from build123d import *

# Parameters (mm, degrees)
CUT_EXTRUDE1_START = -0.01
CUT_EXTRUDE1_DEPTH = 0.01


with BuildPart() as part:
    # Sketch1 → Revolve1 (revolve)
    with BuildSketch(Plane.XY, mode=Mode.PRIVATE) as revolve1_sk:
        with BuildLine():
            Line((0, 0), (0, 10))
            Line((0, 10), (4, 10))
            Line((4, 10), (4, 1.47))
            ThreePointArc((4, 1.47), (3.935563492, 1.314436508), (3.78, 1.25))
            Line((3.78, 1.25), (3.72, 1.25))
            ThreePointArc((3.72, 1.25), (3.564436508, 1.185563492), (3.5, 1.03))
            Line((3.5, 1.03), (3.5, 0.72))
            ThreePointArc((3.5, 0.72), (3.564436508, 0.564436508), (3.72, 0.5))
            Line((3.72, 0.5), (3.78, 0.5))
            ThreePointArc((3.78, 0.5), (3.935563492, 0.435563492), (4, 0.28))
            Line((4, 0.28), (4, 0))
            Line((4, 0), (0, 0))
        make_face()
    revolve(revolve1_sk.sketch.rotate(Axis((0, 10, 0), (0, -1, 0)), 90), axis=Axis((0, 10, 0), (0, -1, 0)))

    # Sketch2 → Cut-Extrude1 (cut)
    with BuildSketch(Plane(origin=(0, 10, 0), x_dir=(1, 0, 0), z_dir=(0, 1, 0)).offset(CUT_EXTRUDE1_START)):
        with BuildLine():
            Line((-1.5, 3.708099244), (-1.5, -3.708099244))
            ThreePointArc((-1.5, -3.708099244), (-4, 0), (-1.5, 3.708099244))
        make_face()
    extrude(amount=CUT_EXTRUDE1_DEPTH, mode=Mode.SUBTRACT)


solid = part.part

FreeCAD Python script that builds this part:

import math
import FreeCAD as App
import Part
import Sketcher

doc = App.newDocument("Part")
body = doc.addObject("PartDesign::Body", "Body")

sketch1 = body.newObject("Sketcher::SketchObject", "Sketch")
sketch1.AttachmentSupport = (doc.getObject("XY_Plane"), [""])
sketch1.MapMode = "FlatFace"
sketch1.addGeometry([
    Part.LineSegment(App.Vector(0, 10, 0), App.Vector(0, 0, 0)),
    Part.LineSegment(App.Vector(0, 0, 0), App.Vector(4, 0, 0)),
    Part.LineSegment(App.Vector(4, 0, 0), App.Vector(4, 0.28, 0)),
    Part.ArcOfCircle(Part.Circle(App.Vector(3.78, 0.28, 0), App.Vector(0, 0, 1), 0.22), math.radians(0), math.radians(90)),
    Part.LineSegment(App.Vector(3.78, 0.5, 0), App.Vector(3.72, 0.5, 0)),
    Part.ArcOfCircle(Part.Circle(App.Vector(3.72, 0.72, 0), App.Vector(0, 0, 1), 0.22), math.radians(180), math.radians(270)),
    Part.LineSegment(App.Vector(3.5, 0.72, 0), App.Vector(3.5, 1.03, 0)),
    Part.ArcOfCircle(Part.Circle(App.Vector(3.72, 1.03, 0), App.Vector(0, 0, 1), 0.22), math.radians(90), math.radians(180)),
    Part.LineSegment(App.Vector(3.72, 1.25, 0), App.Vector(3.78, 1.25, 0)),
    Part.ArcOfCircle(Part.Circle(App.Vector(3.78, 1.47, 0), App.Vector(0, 0, 1), 0.22), math.radians(-90), math.radians(0)),
    Part.LineSegment(App.Vector(4, 1.47, 0), App.Vector(4, 10, 0)),
    Part.LineSegment(App.Vector(4, 10, 0), App.Vector(0, 10, 0)),
], False)
sketch1.addConstraint([
    Sketcher.Constraint("Coincident", 0, 2, 1, 1),
    Sketcher.Constraint("Coincident", 1, 2, 2, 1),
    Sketcher.Constraint("Tangent", 2, 2, 3, 1),
    Sketcher.Constraint("Tangent", 3, 2, 4, 1),
    Sketcher.Constraint("Tangent", 4, 2, 5, 2),
    Sketcher.Constraint("Tangent", 5, 1, 6, 1),
    Sketcher.Constraint("Tangent", 6, 2, 7, 2),
    Sketcher.Constraint("Tangent", 7, 1, 8, 1),
    Sketcher.Constraint("Tangent", 8, 2, 9, 1),
    Sketcher.Constraint("Tangent", 9, 2, 10, 1),
    Sketcher.Constraint("Coincident", 10, 2, 11, 1),
    Sketcher.Constraint("Coincident", 11, 2, 0, 1),
    Sketcher.Constraint("Vertical", 0),
    Sketcher.Constraint("Horizontal", 1),
    Sketcher.Constraint("Vertical", 2),
    Sketcher.Constraint("Horizontal", 4),
    Sketcher.Constraint("Vertical", 6),
    Sketcher.Constraint("Horizontal", 8),
    Sketcher.Constraint("Vertical", 10),
    Sketcher.Constraint("Horizontal", 11),
    Sketcher.Constraint("Coincident", 0, 2, -1, 1),
    Sketcher.Constraint("Equal", 3, 5),
    Sketcher.Constraint("Equal", 5, 7),
    Sketcher.Constraint("Equal", 7, 9),
    Sketcher.Constraint("Vertical", 3, 3, 9, 3),
    Sketcher.Constraint("DistanceX", 1, 1, 1, 2, 4.0),
    Sketcher.Constraint("DistanceY", 0, 2, 0, 1, 10.0),
    Sketcher.Constraint("Radius", 3, 0.22),
    Sketcher.Constraint("DistanceX", 4, 2, 4, 1, 0.06),
    Sketcher.Constraint("DistanceY", 2, 1, 2, 2, 0.28),
    Sketcher.Constraint("DistanceY", 6, 1, 6, 2, 0.31),
])
revolution = body.newObject("PartDesign::Revolution", "Revolution")
revolution.Profile = sketch1
revolution.ReferenceAxis = (sketch1, ["V_Axis"])
revolution.Angle = 360

sketch2 = body.newObject("Sketcher::SketchObject", "Sketch001")
sketch2.AttachmentSupport = (doc.getObject("XZ_Plane"), [""])
sketch2.MapMode = "FlatFace"
sketch2.AttachmentOffset = App.Placement(App.Vector(0, 0, -9.99), App.Rotation())
sketch2.addGeometry([
    Part.LineSegment(App.Vector(-1.5, 3.7, 0), App.Vector(-1.5, -3.7, 0)),
    Part.ArcOfCircle(Part.Circle(App.Vector(0, 0, 0), App.Vector(0, 0, 1), 4), math.radians(112), math.radians(248)),
], False)
sketch2.addConstraint([
    Sketcher.Constraint("Coincident", 0, 1, 1, 1),
    Sketcher.Constraint("Coincident", 1, 2, 0, 2),
    Sketcher.Constraint("Vertical", 0),
    Sketcher.Constraint("Coincident", 1, 3, -1, 1),
    Sketcher.Constraint("Radius", 1, 4.0),
    Sketcher.Constraint("DistanceX", 0, 1, -1, 1, 1.5),
])
pocket1 = body.newObject("PartDesign::Pocket", "Pocket")
pocket1.Profile = sketch2
pocket1.Length = 0.01

doc.recompute()
